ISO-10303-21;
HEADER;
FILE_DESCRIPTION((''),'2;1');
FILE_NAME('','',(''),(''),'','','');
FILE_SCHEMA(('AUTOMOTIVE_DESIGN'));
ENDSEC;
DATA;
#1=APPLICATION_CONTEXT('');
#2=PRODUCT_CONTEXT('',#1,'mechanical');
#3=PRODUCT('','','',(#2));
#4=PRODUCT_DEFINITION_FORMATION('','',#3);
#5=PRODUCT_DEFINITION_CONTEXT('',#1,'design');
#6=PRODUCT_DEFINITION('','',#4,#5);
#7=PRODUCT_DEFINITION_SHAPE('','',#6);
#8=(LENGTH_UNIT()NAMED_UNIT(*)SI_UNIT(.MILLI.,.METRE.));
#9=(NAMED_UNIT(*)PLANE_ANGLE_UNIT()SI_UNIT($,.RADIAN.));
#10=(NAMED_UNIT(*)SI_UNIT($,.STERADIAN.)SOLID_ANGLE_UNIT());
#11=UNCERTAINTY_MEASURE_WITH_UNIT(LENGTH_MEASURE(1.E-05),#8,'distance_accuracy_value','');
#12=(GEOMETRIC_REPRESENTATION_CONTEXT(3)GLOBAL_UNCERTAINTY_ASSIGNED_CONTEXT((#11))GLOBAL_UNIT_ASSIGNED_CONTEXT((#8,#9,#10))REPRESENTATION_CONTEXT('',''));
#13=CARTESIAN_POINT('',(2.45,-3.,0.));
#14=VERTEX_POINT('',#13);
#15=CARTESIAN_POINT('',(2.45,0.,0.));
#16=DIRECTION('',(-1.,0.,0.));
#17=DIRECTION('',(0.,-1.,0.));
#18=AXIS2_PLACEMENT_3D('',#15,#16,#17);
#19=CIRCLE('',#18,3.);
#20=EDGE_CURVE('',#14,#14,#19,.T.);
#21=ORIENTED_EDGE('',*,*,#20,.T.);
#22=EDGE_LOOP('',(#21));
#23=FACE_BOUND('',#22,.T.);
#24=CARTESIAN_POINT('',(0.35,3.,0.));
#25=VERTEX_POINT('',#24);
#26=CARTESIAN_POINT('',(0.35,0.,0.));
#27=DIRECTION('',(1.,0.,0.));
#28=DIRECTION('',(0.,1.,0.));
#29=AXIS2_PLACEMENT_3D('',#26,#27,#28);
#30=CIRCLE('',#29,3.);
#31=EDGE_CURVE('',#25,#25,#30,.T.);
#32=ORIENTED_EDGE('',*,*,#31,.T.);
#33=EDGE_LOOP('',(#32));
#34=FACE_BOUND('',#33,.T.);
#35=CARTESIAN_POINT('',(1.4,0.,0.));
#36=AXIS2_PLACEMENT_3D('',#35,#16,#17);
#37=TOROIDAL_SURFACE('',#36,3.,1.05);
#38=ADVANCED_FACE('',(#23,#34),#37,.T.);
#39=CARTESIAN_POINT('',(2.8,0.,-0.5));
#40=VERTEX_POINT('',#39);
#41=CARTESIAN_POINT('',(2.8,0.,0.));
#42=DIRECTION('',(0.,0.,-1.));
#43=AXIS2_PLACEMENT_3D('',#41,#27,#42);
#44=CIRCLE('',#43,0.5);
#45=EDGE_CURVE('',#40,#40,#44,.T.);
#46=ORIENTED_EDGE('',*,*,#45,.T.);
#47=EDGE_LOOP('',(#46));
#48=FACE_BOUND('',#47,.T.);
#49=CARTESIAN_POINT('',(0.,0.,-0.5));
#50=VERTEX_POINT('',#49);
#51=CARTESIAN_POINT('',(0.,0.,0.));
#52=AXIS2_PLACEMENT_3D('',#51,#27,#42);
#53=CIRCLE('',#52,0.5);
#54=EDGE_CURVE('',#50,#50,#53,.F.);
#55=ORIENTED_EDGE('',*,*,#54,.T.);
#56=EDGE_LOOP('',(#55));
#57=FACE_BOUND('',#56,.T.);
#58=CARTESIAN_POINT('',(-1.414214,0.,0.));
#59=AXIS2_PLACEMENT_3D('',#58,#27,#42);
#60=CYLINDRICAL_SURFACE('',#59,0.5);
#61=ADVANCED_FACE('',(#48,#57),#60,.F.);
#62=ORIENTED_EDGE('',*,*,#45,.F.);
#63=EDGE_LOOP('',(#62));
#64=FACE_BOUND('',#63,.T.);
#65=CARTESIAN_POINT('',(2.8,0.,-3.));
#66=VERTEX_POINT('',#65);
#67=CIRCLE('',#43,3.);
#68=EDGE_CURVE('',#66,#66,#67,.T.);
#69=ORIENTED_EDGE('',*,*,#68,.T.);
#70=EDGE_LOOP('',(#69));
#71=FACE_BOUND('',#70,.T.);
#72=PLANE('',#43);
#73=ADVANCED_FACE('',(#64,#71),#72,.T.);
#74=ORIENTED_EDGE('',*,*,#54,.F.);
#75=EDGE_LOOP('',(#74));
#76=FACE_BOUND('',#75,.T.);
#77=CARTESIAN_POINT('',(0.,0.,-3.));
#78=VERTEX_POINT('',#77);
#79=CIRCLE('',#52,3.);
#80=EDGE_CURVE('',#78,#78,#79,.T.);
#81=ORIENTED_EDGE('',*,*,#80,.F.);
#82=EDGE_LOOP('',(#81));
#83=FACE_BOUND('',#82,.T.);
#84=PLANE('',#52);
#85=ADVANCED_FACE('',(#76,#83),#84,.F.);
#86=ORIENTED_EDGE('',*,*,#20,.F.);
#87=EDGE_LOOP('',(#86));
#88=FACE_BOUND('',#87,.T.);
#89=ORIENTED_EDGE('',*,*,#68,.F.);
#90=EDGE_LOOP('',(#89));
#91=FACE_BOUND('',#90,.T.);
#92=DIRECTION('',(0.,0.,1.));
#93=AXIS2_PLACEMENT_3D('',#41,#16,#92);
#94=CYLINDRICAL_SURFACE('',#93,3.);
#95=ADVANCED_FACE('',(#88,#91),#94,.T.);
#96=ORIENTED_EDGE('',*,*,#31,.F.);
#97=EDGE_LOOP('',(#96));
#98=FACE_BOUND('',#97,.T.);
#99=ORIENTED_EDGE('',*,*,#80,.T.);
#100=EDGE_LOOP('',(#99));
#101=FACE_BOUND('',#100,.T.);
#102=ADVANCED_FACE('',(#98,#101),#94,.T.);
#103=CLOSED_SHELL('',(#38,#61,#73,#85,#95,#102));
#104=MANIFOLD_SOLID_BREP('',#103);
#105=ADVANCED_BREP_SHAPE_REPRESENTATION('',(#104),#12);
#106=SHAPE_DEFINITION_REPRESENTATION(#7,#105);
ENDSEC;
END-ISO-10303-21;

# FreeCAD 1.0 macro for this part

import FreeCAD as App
import Part
import Sketcher
Q = App.Units.Quantity

doc = App.newDocument("Part")
params = doc.addObject("Spreadsheet::Sheet", "Params")
for row, (alias, value) in enumerate([
    ("sketch1_diameter", "6 mm"),
    ("pad1_length", "2.8 mm"),
    ("sketch2_diameter", "2.1 mm"),
    ("revolution_angle", "360 deg"),
    ("sketch3_diameter", "1 mm"),
    ("pocket1_length", "2.8 mm"),
], start=1):
    params.set(f"A{row}", alias)
    params.set(f"B{row}", "=" + value)
    params.setAlias(f"B{row}", alias)

body = doc.addObject("PartDesign::Body", "Body")

# Sketch on YZ plane
sketch1 = body.newObject("Sketcher::SketchObject", "Sketch")
sketch1.AttachmentSupport = (doc.getObject("YZ_Plane"), [""])
sketch1.MapMode = "FlatFace"
sketch1.addGeometry(Part.Circle(App.Vector(0, 0, 0), App.Vector(0, 0, 1), 3), False)
sketch1.addConstraint(Sketcher.Constraint("Coincident", 0, 3, -1, 1))
sketch1.addConstraint(Sketcher.Constraint("Diameter", 0, Q("6 mm")))
sketch1.setExpression("Constraints[1]", "Params.sketch1_diameter")
pad1 = body.newObject("PartDesign::Pad", "Pad")
pad1.Profile = sketch1
pad1.setExpression("Length", "Params.pad1_length")

# Sketch on XY plane
sketch2 = body.newObject("Sketcher::SketchObject", "Sketch001")
sketch2.AttachmentSupport = (doc.getObject("XY_Plane"), [""])
sketch2.MapMode = "FlatFace"
sketch2.addGeometry(Part.Circle(App.Vector(1.4, 3, 0), App.Vector(0, 0, 1), 1.05), False)
sketch2.addConstraint(Sketcher.Constraint("Diameter", 0, Q("2.1 mm")))
sketch2.addConstraint(Sketcher.Constraint("DistanceY", -1, 1, 0, 3, Q("3 mm")))
sketch2.addConstraint(Sketcher.Constraint("DistanceX", -1, 1, 0, 3, Q("1.4 mm")))
sketch2.setExpression("Constraints[0]", "Params.sketch2_diameter")
revolution = body.newObject("PartDesign::Revolution", "Revolution")
revolution.Profile = sketch2
revolution.ReferenceAxis = (sketch2, ["H_Axis"])
revolution.setExpression("Angle", "Params.revolution_angle")

# Sketch on YZ plane
sketch3 = body.newObject("Sketcher::SketchObject", "Sketch002")
sketch3.AttachmentSupport = (doc.getObject("YZ_Plane"), [""])
sketch3.MapMode = "FlatFace"
sketch3.AttachmentOffset = App.Placement(App.Vector(0, 0, 2.8), App.Rotation())
sketch3.addGeometry(Part.Circle(App.Vector(0, 0, 0), App.Vector(0, 0, 1), 0.5), False)
sketch3.addConstraint(Sketcher.Constraint("Coincident", 0, 3, -1, 1))
sketch3.addConstraint(Sketcher.Constraint("Diameter", 0, Q("1 mm")))
sketch3.setExpression("Constraints[1]", "Params.sketch3_diameter")
pocket1 = body.newObject("PartDesign::Pocket", "Pocket")
pocket1.Profile = sketch3
pocket1.setExpression("Length", "Params.pocket1_length")

doc.recompute()
